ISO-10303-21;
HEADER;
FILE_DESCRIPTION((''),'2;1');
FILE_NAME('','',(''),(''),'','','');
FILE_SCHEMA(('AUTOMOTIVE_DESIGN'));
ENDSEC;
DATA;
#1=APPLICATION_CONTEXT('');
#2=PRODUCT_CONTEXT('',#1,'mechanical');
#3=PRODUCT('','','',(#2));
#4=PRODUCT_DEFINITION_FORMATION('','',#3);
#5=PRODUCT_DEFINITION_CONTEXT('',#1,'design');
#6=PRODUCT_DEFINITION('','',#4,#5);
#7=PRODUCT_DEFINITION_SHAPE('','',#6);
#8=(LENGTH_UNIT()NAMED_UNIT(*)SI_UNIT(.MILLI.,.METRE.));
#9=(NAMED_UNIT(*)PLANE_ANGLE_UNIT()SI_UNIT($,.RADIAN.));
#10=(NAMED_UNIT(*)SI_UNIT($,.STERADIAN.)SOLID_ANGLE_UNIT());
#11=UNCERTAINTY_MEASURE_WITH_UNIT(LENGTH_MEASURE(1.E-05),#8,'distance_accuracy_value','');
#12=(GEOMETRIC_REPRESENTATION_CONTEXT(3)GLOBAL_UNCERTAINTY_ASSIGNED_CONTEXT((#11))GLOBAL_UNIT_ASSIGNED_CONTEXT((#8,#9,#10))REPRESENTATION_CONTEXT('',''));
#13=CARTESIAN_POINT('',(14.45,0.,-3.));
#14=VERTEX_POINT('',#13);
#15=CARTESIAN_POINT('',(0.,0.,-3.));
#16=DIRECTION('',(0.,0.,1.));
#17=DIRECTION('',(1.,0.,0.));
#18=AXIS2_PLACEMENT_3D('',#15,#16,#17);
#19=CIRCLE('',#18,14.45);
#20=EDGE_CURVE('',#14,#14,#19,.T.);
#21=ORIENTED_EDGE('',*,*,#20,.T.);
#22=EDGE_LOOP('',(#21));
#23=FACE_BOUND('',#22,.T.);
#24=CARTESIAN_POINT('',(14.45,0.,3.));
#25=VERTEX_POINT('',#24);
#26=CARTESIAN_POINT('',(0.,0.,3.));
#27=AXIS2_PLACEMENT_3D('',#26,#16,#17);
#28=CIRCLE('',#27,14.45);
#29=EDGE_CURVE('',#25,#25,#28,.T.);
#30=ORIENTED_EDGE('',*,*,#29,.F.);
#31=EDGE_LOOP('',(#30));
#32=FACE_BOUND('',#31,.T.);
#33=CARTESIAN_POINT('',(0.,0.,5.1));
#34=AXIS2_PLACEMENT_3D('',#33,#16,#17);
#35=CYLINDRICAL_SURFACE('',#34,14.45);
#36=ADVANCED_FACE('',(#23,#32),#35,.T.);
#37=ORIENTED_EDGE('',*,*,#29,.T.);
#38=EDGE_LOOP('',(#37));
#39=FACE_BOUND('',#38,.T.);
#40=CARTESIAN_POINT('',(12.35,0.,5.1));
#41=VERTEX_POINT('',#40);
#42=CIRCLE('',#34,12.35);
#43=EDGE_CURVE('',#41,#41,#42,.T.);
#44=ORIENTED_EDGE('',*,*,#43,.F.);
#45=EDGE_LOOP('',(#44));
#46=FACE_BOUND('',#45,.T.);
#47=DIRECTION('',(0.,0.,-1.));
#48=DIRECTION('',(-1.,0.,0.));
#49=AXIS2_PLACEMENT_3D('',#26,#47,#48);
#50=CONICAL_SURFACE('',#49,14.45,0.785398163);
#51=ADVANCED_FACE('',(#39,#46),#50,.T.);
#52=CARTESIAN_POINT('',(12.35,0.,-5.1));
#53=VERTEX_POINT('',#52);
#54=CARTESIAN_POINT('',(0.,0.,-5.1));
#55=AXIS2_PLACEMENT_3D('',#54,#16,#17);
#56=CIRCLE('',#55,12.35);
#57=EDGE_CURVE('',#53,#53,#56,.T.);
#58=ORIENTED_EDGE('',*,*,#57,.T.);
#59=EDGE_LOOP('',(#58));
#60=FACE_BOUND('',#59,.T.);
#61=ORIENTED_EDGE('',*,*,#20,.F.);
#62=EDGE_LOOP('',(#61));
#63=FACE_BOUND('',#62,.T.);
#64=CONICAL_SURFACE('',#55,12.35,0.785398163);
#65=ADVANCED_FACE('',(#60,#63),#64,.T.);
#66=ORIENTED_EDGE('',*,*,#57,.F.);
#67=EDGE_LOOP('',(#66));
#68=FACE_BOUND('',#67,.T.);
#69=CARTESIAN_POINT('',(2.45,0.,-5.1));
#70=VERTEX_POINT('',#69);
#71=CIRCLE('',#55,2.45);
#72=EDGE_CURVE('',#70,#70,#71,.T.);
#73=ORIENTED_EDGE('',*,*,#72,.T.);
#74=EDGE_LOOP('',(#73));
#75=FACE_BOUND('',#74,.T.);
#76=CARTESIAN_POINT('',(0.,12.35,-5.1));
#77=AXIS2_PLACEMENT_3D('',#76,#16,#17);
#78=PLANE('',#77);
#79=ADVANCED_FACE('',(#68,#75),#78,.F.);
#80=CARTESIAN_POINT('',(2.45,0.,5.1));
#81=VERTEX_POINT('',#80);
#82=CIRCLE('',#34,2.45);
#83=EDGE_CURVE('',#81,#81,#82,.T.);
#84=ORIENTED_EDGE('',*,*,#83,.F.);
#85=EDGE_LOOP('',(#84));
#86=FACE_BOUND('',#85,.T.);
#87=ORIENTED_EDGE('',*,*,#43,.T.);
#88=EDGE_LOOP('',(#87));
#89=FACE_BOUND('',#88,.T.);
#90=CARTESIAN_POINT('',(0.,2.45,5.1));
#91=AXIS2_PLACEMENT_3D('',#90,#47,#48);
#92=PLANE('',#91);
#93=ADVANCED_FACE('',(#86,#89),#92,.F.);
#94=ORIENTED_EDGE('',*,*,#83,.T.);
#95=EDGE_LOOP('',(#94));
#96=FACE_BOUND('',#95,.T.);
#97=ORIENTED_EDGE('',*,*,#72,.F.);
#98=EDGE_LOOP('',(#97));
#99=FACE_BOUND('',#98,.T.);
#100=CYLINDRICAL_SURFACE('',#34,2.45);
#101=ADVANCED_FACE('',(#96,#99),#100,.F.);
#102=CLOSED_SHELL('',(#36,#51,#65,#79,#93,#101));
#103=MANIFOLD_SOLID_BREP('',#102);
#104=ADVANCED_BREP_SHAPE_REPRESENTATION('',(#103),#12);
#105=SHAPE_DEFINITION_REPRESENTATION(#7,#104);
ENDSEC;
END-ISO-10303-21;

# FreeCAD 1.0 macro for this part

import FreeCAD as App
import Part
import Sketcher

V = App.Vector
Q = App.Units.Quantity


def add_polygon(sketch, points):
    """Adds a closed chain of lines whose ends are joined by coincident constraints."""
    first, n = sketch.GeometryCount, len(points)
    for a, b in zip(points, points[1:] + points[:1]):
        sketch.addGeometry(Part.LineSegment(App.Vector(*a, 0), App.Vector(*b, 0)), False)
    for i in range(n):
        sketch.addConstraint(Sketcher.Constraint("Coincident", first + i, 2, first + (i + 1) % n, 1))

doc = App.newDocument("Part")
body = doc.addObject("PartDesign::Body", "Body")

sketch1 = body.newObject("Sketcher::SketchObject", "Sketch")
sketch1.AttachmentSupport = (doc.getObject("YZ_Plane"), [""])
sketch1.MapMode = "FlatFace"
add_polygon(sketch1, [(12.3, 5.1), (2.5, 5.1), (2.5, -5.1), (12.3, -5.1), (14.4, -3), (14.4, 3)])
sketch1.addConstraint([
    Sketcher.Constraint("Horizontal", 0),
    Sketcher.Constraint("Vertical", 1),
    Sketcher.Constraint("Horizontal", 2),
    Sketcher.Constraint("Vertical", 4),
    Sketcher.Constraint("Symmetric", 2, 2, 5, 2, -1),
    Sketcher.Constraint("Perpendicular", 3, 5),
    Sketcher.Constraint("Equal", 3, 5),
    Sketcher.Constraint("DistanceY", 4, 1, 4, 2, Q("6 mm")),
    Sketcher.Constraint("DistanceX", 0, 2, 0, 1, Q("9.9 mm")),
    Sketcher.Constraint("DistanceY", 1, 2, 1, 1, Q("10.2 mm")),
    Sketcher.Constraint("DistanceX", -1, 1, 0, 2, Q("2.45 mm")),
])
revolution = body.newObject("PartDesign::Revolution", "Revolution")
revolution.Profile = sketch1
revolution.ReferenceAxis = (sketch1, ["V_Axis"])
revolution.Angle = 360

doc.recompute()
